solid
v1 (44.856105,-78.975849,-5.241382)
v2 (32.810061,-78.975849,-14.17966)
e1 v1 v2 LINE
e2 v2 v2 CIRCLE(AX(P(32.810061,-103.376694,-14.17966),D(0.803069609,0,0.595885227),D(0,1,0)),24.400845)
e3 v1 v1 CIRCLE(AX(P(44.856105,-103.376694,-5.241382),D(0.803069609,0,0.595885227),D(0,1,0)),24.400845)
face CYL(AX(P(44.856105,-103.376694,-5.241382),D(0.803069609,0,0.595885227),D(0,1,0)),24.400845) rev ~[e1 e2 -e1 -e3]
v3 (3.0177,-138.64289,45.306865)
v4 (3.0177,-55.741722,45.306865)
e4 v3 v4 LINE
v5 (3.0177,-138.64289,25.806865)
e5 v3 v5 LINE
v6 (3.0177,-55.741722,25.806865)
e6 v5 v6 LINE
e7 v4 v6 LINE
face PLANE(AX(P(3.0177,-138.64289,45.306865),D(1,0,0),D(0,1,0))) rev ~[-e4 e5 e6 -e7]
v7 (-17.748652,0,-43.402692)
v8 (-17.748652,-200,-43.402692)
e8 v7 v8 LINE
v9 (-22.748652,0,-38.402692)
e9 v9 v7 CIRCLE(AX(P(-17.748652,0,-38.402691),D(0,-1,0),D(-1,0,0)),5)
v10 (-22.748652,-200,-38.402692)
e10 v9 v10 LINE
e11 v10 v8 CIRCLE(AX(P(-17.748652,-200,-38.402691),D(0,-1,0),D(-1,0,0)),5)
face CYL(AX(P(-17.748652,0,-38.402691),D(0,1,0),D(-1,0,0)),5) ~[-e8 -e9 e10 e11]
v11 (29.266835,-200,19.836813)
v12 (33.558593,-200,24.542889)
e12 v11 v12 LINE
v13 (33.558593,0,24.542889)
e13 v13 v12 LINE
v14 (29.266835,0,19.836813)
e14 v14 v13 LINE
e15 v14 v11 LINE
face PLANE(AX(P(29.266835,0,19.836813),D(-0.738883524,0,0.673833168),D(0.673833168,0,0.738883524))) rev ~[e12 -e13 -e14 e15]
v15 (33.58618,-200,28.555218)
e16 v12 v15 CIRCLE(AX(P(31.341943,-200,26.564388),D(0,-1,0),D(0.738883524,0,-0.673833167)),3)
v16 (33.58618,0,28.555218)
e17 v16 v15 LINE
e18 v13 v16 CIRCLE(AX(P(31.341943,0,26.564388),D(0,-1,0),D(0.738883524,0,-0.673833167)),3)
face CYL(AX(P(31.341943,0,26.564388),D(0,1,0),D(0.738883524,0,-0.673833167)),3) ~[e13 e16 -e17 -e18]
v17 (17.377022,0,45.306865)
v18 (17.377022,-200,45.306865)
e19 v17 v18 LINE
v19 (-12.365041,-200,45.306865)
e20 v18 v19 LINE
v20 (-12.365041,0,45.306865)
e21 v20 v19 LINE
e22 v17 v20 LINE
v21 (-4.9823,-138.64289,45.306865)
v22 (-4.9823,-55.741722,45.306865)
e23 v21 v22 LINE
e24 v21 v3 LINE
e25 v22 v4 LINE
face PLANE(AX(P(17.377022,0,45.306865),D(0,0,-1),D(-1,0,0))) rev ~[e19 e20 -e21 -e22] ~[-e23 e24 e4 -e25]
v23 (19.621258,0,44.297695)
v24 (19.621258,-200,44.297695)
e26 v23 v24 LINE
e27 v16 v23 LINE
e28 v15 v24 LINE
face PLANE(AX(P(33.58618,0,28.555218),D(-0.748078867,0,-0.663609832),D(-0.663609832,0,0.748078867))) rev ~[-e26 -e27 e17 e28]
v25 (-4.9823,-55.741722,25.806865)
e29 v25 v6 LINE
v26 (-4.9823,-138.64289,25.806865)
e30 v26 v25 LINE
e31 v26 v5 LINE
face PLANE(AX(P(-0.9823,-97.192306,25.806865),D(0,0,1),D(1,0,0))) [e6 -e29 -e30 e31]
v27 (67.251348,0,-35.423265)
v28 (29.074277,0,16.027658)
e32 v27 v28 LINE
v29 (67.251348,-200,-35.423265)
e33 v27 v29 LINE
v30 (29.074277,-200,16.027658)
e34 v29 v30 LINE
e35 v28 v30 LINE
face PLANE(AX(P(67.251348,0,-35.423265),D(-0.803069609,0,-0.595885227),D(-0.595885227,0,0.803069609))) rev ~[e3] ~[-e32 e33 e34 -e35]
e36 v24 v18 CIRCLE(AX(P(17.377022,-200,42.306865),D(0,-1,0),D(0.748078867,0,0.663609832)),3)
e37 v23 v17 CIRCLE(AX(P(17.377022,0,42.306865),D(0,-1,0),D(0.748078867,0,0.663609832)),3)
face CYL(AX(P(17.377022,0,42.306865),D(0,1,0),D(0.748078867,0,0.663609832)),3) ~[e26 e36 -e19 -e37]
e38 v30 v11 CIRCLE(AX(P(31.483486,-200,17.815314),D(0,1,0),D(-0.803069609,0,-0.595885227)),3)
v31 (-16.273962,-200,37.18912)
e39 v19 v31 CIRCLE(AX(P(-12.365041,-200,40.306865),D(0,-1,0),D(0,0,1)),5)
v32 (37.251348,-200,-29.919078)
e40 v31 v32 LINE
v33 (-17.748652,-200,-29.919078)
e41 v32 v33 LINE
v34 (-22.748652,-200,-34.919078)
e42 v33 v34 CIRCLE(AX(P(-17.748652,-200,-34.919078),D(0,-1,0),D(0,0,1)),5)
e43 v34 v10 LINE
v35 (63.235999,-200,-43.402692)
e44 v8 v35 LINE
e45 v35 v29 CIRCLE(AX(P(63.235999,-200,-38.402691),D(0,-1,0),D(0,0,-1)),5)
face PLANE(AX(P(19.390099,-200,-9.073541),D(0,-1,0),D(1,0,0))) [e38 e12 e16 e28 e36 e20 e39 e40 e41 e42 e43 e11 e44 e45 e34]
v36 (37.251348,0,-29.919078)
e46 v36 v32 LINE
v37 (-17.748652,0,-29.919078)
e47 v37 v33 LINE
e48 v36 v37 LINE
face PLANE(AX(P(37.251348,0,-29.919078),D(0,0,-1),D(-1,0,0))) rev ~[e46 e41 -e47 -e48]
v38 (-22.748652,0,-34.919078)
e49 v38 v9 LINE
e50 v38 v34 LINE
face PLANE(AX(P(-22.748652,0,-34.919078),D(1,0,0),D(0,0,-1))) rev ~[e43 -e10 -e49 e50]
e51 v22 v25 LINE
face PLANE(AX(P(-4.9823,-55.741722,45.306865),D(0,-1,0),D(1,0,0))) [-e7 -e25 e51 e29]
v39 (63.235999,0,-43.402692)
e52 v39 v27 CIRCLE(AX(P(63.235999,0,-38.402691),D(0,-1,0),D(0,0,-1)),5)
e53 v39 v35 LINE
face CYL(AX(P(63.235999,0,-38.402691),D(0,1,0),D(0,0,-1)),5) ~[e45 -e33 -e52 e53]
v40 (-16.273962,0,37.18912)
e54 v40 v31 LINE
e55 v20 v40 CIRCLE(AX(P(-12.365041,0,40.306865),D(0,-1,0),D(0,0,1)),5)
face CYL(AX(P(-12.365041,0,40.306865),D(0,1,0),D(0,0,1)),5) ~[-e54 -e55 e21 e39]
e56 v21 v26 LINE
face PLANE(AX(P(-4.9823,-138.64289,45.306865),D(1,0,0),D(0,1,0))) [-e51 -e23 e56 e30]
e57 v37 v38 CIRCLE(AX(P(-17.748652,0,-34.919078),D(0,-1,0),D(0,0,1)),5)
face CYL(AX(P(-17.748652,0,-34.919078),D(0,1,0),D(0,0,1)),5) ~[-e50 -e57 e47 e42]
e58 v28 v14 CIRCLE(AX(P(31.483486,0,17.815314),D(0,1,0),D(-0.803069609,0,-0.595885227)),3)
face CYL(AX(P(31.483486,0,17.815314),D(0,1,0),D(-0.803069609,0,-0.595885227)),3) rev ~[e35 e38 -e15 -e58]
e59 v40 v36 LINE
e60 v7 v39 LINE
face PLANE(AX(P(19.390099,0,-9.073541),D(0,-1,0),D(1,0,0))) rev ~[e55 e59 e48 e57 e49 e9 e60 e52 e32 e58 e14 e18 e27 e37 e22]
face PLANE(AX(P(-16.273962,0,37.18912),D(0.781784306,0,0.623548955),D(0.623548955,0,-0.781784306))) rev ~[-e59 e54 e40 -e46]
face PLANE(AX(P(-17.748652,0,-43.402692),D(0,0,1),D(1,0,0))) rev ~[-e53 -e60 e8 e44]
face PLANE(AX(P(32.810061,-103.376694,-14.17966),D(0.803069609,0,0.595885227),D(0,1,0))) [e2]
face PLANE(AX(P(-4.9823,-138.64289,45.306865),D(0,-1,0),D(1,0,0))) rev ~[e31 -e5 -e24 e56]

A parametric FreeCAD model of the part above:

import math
import FreeCAD as App
import Part
import Sketcher
Q = App.Units.Quantity


def add_polygon(sketch, points):
    """Adds a closed chain of lines whose ends are joined by coincident constraints."""
    first, n = sketch.GeometryCount, len(points)
    for a, b in zip(points, points[1:] + points[:1]):
        sketch.addGeometry(Part.LineSegment(App.Vector(*a, 0), App.Vector(*b, 0)), False)
    for i in range(n):
        sketch.addConstraint(Sketcher.Constraint("Coincident", first + i, 2, first + (i + 1) % n, 1))

doc = App.newDocument("Part")
body = doc.addObject("PartDesign::Body", "Body")

# Sketch on XZ plane
sketch1 = body.newObject("Sketcher::SketchObject", "Sketch")
sketch1.AttachmentSupport = (doc.getObject("XZ_Plane"), [""])
sketch1.MapMode = "FlatFace"
sketch1.addGeometry([
    Part.ArcOfCircle(Part.Circle(App.Vector(-12.365041, 40.306865, 0), App.Vector(0, 0, 1), 5), math.radians(90), math.radians(218.575764)),  # 0
    Part.LineSegment(App.Vector(-16.273962, 37.18912, 0), App.Vector(37.251348, -29.919078, 0)),  # 1
    Part.LineSegment(App.Vector(37.251348, -29.919078, 0), App.Vector(-17.748652, -29.919078, 0)),  # 2
    Part.ArcOfCircle(Part.Circle(App.Vector(-17.748652, -34.919078, 0), App.Vector(0, 0, 1), 5), math.radians(90), math.radians(180)),  # 3
    Part.LineSegment(App.Vector(-22.748652, -34.919078, 0), App.Vector(-22.748652, -38.402692, 0)),  # 4
    Part.ArcOfCircle(Part.Circle(App.Vector(-17.748652, -38.402692, 0), App.Vector(0, 0, 1), 5), math.radians(180), math.radians(270)),  # 5
    Part.LineSegment(App.Vector(-17.748652, -43.402692, 0), App.Vector(63.235999, -43.402692, 0)),  # 6
    Part.ArcOfCircle(Part.Circle(App.Vector(63.235999, -38.402692, 0), App.Vector(0, 0, 1), 5), math.radians(-90), math.radians(36.575764)),  # 7
    Part.LineSegment(App.Vector(67.251348, -35.423265, 0), App.Vector(29.074277, 16.027658, 0)),  # 8
    Part.ArcOfCircle(Part.Circle(App.Vector(31.483486, 17.815314, 0), App.Vector(0, 0, 1), 3), math.radians(137.636396), math.radians(216.575764)),  # 9
    Part.LineSegment(App.Vector(29.266835, 19.836813, 0), App.Vector(33.558593, 24.542889, 0)),  # 10
    Part.ArcOfCircle(Part.Circle(App.Vector(31.341943, 26.564388, 0), App.Vector(0, 0, 1), 3), math.radians(-42.363604), math.radians(41.575764)),  # 11
    Part.LineSegment(App.Vector(33.58618, 28.555218, 0), App.Vector(19.621258, 44.297695, 0)),  # 12
    Part.ArcOfCircle(Part.Circle(App.Vector(17.377022, 42.306865, 0), App.Vector(0, 0, 1), 3), math.radians(41.575764), math.radians(90)),  # 13
    Part.LineSegment(App.Vector(17.377022, 45.306865, 0), App.Vector(-12.365041, 45.306865, 0)),  # 14
], False)
sketch1.addConstraint([
    Sketcher.Constraint("Coincident", 0, 2, 1, 1),
    Sketcher.Constraint("Coincident", 1, 2, 2, 1),
    Sketcher.Constraint("Coincident", 2, 2, 3, 1),
    Sketcher.Constraint("Coincident", 3, 2, 4, 1),
    Sketcher.Constraint("Coincident", 4, 2, 5, 1),
    Sketcher.Constraint("Coincident", 5, 2, 6, 1),
    Sketcher.Constraint("Coincident", 6, 2, 7, 1),
    Sketcher.Constraint("Coincident", 7, 2, 8, 1),
    Sketcher.Constraint("Coincident", 8, 2, 9, 2),
    Sketcher.Constraint("Coincident", 9, 1, 10, 1),
    Sketcher.Constraint("Coincident", 10, 2, 11, 1),
    Sketcher.Constraint("Coincident", 11, 2, 12, 1),
    Sketcher.Constraint("Coincident", 12, 2, 13, 1),
    Sketcher.Constraint("Coincident", 13, 2, 14, 1),
    Sketcher.Constraint("Coincident", 14, 2, 0, 1),
    Sketcher.Constraint("Horizontal", 2),
    Sketcher.Constraint("Vertical", 4),
    Sketcher.Constraint("Horizontal", 6),
    Sketcher.Constraint("Horizontal", 14),
    Sketcher.Constraint("Radius", 0, Q("5 mm")),
    Sketcher.Constraint("Radius", 3, Q("5 mm")),
    Sketcher.Constraint("Radius", 5, Q("5 mm")),
    Sketcher.Constraint("Radius", 7, Q("5 mm")),
    Sketcher.Constraint("Radius", 9, Q("3 mm")),
    Sketcher.Constraint("Radius", 11, Q("3 mm")),
    Sketcher.Constraint("Radius", 13, Q("3 mm")),
    Sketcher.Constraint("DistanceX", 2, 2, 2, 1, Q("55 mm")),
    Sketcher.Constraint("DistanceX", 3, 3, 1, 2, Q("55 mm")),
    Sketcher.Constraint("DistanceY", 3, 2, 2, 2, Q("5 mm")),
    Sketcher.Constraint("DistanceX", 4, 2, 5, 2, Q("5 mm")),
    Sketcher.Constraint("DistanceY", 5, 2, 4, 2, Q("5 mm")),
    Sketcher.Constraint("DistanceX", 1, 2, 7, 2, Q("30 mm")),
    Sketcher.Constraint("DistanceX", -1, 1, 7, 3, Q("63.235999 mm")),
    Sketcher.Constraint("DistanceX", -1, 1, 6, 2, Q("63.235999 mm")),
    Sketcher.Constraint("DistanceX", 6, 1, 6, 2, Q("80.984652 mm")),
    Sketcher.Constraint("DistanceY", 3, 3, 0, 2, Q("72.108199 mm")),
    Sketcher.Constraint("DistanceY", 9, 3, 9, 1, Q("2.0215 mm")),
    Sketcher.Constraint("DistanceY", 10, 2, 11, 3, Q("2.0215 mm")),
    Sketcher.Constraint("DistanceX", 14, 2, 12, 2, Q("31.986299 mm")),
    Sketcher.Constraint("Distance", 10, Q("6.369171 mm")),
    Sketcher.Constraint("DistanceX", 14, 2, 14, 1, Q("29.742062 mm")),
    Sketcher.Constraint("DistanceY", 4, 2, 4, 1, Q("3.483613 mm")),
    Sketcher.Constraint("DistanceX", 0, 3, -1, 1, Q("12.365041 mm")),
    Sketcher.Constraint("DistanceY", 3, 3, -1, 1, Q("34.919078 mm")),
    Sketcher.Constraint("DistanceY", -1, 1, 11, 3, Q("26.564388 mm")),
    Sketcher.Constraint("DistanceX", -1, 1, 13, 3, Q("17.377022 mm")),
    Sketcher.Constraint("DistanceY", -1, 1, 8, 2, Q("16.027658 mm")),
    Sketcher.Constraint("DistanceX", -1, 1, 11, 2, Q("33.58618 mm")),
    Sketcher.Constraint("DistanceX", -1, 1, 12, 2, Q("19.621258 mm")),
    Sketcher.Constraint("DistanceY", 9, 3, 0, 3, Q("22.491551 mm")),
    Sketcher.Constraint("DistanceX", 3, 3, 9, 3, Q("49.232138 mm")),
    Sketcher.Constraint("DistanceX", 13, 3, 11, 3, Q("13.964921 mm")),
])
pad1 = body.newObject("PartDesign::Pad", "Pad")
pad1.Profile = sketch1
pad1.Length = 200

# Sketch on XY plane
sketch2 = body.newObject("Sketcher::SketchObject", "Sketch001")
sketch2.AttachmentSupport = (doc.getObject("XY_Plane"), [""])
sketch2.MapMode = "FlatFace"
sketch2.AttachmentOffset = App.Placement(App.Vector(0, 0, 45.306865), App.Rotation())
add_polygon(sketch2, [(-5, -56), (-5, -139), (3, -139), (3, -56)])  # lines 0-3
sketch2.addConstraint([
    Sketcher.Constraint("Vertical", 0),
    Sketcher.Constraint("Horizontal", 1),
    Sketcher.Constraint("Vertical", 2),
    Sketcher.Constraint("Horizontal", 3),
    Sketcher.Constraint("DistanceX", 1, 1, 1, 2, Q("8 mm")),
    Sketcher.Constraint("DistanceX", 0, 2, -1, 1, Q("4.9823 mm")),
    Sketcher.Constraint("DistanceY", 0, 2, 0, 1, Q("82.901168 mm")),
    Sketcher.Constraint("DistanceY", 0, 2, -1, 1, Q("138.64289 mm")),
])
pocket1 = body.newObject("PartDesign::Pocket", "Pocket")
pocket1.Profile = sketch2
pocket1.Length = 19.5

# Sketch on an angled plane
sketch3 = body.newObject("Sketcher::SketchObject", "Sketch002")
sketch3.Placement = App.Placement(App.Vector(26.420438, 0, 19.604214), App.Rotation(App.Vector(0, 1, 0), App.Vector(-0.595885227, 0, 0.803069609), App.Vector(0.803069609, 0, 0.595885227), "ZXY"))
sketch3.addGeometry(Part.Circle(App.Vector(-103, -31, 0), App.Vector(0, 0, 1), 24), False)
sketch3.addConstraint([
    Sketcher.Constraint("Diameter", 0, Q("48.80169 mm")),
    Sketcher.Constraint("DistanceX", 0, 3, -1, 1, Q("103.376694 mm")),
    Sketcher.Constraint("DistanceY", 0, 3, -1, 1, Q("30.938284 mm")),
])
pocket2 = body.newObject("PartDesign::Pocket", "Pocket001")
pocket2.Profile = sketch3
pocket2.Length = 15

doc.recompute()
